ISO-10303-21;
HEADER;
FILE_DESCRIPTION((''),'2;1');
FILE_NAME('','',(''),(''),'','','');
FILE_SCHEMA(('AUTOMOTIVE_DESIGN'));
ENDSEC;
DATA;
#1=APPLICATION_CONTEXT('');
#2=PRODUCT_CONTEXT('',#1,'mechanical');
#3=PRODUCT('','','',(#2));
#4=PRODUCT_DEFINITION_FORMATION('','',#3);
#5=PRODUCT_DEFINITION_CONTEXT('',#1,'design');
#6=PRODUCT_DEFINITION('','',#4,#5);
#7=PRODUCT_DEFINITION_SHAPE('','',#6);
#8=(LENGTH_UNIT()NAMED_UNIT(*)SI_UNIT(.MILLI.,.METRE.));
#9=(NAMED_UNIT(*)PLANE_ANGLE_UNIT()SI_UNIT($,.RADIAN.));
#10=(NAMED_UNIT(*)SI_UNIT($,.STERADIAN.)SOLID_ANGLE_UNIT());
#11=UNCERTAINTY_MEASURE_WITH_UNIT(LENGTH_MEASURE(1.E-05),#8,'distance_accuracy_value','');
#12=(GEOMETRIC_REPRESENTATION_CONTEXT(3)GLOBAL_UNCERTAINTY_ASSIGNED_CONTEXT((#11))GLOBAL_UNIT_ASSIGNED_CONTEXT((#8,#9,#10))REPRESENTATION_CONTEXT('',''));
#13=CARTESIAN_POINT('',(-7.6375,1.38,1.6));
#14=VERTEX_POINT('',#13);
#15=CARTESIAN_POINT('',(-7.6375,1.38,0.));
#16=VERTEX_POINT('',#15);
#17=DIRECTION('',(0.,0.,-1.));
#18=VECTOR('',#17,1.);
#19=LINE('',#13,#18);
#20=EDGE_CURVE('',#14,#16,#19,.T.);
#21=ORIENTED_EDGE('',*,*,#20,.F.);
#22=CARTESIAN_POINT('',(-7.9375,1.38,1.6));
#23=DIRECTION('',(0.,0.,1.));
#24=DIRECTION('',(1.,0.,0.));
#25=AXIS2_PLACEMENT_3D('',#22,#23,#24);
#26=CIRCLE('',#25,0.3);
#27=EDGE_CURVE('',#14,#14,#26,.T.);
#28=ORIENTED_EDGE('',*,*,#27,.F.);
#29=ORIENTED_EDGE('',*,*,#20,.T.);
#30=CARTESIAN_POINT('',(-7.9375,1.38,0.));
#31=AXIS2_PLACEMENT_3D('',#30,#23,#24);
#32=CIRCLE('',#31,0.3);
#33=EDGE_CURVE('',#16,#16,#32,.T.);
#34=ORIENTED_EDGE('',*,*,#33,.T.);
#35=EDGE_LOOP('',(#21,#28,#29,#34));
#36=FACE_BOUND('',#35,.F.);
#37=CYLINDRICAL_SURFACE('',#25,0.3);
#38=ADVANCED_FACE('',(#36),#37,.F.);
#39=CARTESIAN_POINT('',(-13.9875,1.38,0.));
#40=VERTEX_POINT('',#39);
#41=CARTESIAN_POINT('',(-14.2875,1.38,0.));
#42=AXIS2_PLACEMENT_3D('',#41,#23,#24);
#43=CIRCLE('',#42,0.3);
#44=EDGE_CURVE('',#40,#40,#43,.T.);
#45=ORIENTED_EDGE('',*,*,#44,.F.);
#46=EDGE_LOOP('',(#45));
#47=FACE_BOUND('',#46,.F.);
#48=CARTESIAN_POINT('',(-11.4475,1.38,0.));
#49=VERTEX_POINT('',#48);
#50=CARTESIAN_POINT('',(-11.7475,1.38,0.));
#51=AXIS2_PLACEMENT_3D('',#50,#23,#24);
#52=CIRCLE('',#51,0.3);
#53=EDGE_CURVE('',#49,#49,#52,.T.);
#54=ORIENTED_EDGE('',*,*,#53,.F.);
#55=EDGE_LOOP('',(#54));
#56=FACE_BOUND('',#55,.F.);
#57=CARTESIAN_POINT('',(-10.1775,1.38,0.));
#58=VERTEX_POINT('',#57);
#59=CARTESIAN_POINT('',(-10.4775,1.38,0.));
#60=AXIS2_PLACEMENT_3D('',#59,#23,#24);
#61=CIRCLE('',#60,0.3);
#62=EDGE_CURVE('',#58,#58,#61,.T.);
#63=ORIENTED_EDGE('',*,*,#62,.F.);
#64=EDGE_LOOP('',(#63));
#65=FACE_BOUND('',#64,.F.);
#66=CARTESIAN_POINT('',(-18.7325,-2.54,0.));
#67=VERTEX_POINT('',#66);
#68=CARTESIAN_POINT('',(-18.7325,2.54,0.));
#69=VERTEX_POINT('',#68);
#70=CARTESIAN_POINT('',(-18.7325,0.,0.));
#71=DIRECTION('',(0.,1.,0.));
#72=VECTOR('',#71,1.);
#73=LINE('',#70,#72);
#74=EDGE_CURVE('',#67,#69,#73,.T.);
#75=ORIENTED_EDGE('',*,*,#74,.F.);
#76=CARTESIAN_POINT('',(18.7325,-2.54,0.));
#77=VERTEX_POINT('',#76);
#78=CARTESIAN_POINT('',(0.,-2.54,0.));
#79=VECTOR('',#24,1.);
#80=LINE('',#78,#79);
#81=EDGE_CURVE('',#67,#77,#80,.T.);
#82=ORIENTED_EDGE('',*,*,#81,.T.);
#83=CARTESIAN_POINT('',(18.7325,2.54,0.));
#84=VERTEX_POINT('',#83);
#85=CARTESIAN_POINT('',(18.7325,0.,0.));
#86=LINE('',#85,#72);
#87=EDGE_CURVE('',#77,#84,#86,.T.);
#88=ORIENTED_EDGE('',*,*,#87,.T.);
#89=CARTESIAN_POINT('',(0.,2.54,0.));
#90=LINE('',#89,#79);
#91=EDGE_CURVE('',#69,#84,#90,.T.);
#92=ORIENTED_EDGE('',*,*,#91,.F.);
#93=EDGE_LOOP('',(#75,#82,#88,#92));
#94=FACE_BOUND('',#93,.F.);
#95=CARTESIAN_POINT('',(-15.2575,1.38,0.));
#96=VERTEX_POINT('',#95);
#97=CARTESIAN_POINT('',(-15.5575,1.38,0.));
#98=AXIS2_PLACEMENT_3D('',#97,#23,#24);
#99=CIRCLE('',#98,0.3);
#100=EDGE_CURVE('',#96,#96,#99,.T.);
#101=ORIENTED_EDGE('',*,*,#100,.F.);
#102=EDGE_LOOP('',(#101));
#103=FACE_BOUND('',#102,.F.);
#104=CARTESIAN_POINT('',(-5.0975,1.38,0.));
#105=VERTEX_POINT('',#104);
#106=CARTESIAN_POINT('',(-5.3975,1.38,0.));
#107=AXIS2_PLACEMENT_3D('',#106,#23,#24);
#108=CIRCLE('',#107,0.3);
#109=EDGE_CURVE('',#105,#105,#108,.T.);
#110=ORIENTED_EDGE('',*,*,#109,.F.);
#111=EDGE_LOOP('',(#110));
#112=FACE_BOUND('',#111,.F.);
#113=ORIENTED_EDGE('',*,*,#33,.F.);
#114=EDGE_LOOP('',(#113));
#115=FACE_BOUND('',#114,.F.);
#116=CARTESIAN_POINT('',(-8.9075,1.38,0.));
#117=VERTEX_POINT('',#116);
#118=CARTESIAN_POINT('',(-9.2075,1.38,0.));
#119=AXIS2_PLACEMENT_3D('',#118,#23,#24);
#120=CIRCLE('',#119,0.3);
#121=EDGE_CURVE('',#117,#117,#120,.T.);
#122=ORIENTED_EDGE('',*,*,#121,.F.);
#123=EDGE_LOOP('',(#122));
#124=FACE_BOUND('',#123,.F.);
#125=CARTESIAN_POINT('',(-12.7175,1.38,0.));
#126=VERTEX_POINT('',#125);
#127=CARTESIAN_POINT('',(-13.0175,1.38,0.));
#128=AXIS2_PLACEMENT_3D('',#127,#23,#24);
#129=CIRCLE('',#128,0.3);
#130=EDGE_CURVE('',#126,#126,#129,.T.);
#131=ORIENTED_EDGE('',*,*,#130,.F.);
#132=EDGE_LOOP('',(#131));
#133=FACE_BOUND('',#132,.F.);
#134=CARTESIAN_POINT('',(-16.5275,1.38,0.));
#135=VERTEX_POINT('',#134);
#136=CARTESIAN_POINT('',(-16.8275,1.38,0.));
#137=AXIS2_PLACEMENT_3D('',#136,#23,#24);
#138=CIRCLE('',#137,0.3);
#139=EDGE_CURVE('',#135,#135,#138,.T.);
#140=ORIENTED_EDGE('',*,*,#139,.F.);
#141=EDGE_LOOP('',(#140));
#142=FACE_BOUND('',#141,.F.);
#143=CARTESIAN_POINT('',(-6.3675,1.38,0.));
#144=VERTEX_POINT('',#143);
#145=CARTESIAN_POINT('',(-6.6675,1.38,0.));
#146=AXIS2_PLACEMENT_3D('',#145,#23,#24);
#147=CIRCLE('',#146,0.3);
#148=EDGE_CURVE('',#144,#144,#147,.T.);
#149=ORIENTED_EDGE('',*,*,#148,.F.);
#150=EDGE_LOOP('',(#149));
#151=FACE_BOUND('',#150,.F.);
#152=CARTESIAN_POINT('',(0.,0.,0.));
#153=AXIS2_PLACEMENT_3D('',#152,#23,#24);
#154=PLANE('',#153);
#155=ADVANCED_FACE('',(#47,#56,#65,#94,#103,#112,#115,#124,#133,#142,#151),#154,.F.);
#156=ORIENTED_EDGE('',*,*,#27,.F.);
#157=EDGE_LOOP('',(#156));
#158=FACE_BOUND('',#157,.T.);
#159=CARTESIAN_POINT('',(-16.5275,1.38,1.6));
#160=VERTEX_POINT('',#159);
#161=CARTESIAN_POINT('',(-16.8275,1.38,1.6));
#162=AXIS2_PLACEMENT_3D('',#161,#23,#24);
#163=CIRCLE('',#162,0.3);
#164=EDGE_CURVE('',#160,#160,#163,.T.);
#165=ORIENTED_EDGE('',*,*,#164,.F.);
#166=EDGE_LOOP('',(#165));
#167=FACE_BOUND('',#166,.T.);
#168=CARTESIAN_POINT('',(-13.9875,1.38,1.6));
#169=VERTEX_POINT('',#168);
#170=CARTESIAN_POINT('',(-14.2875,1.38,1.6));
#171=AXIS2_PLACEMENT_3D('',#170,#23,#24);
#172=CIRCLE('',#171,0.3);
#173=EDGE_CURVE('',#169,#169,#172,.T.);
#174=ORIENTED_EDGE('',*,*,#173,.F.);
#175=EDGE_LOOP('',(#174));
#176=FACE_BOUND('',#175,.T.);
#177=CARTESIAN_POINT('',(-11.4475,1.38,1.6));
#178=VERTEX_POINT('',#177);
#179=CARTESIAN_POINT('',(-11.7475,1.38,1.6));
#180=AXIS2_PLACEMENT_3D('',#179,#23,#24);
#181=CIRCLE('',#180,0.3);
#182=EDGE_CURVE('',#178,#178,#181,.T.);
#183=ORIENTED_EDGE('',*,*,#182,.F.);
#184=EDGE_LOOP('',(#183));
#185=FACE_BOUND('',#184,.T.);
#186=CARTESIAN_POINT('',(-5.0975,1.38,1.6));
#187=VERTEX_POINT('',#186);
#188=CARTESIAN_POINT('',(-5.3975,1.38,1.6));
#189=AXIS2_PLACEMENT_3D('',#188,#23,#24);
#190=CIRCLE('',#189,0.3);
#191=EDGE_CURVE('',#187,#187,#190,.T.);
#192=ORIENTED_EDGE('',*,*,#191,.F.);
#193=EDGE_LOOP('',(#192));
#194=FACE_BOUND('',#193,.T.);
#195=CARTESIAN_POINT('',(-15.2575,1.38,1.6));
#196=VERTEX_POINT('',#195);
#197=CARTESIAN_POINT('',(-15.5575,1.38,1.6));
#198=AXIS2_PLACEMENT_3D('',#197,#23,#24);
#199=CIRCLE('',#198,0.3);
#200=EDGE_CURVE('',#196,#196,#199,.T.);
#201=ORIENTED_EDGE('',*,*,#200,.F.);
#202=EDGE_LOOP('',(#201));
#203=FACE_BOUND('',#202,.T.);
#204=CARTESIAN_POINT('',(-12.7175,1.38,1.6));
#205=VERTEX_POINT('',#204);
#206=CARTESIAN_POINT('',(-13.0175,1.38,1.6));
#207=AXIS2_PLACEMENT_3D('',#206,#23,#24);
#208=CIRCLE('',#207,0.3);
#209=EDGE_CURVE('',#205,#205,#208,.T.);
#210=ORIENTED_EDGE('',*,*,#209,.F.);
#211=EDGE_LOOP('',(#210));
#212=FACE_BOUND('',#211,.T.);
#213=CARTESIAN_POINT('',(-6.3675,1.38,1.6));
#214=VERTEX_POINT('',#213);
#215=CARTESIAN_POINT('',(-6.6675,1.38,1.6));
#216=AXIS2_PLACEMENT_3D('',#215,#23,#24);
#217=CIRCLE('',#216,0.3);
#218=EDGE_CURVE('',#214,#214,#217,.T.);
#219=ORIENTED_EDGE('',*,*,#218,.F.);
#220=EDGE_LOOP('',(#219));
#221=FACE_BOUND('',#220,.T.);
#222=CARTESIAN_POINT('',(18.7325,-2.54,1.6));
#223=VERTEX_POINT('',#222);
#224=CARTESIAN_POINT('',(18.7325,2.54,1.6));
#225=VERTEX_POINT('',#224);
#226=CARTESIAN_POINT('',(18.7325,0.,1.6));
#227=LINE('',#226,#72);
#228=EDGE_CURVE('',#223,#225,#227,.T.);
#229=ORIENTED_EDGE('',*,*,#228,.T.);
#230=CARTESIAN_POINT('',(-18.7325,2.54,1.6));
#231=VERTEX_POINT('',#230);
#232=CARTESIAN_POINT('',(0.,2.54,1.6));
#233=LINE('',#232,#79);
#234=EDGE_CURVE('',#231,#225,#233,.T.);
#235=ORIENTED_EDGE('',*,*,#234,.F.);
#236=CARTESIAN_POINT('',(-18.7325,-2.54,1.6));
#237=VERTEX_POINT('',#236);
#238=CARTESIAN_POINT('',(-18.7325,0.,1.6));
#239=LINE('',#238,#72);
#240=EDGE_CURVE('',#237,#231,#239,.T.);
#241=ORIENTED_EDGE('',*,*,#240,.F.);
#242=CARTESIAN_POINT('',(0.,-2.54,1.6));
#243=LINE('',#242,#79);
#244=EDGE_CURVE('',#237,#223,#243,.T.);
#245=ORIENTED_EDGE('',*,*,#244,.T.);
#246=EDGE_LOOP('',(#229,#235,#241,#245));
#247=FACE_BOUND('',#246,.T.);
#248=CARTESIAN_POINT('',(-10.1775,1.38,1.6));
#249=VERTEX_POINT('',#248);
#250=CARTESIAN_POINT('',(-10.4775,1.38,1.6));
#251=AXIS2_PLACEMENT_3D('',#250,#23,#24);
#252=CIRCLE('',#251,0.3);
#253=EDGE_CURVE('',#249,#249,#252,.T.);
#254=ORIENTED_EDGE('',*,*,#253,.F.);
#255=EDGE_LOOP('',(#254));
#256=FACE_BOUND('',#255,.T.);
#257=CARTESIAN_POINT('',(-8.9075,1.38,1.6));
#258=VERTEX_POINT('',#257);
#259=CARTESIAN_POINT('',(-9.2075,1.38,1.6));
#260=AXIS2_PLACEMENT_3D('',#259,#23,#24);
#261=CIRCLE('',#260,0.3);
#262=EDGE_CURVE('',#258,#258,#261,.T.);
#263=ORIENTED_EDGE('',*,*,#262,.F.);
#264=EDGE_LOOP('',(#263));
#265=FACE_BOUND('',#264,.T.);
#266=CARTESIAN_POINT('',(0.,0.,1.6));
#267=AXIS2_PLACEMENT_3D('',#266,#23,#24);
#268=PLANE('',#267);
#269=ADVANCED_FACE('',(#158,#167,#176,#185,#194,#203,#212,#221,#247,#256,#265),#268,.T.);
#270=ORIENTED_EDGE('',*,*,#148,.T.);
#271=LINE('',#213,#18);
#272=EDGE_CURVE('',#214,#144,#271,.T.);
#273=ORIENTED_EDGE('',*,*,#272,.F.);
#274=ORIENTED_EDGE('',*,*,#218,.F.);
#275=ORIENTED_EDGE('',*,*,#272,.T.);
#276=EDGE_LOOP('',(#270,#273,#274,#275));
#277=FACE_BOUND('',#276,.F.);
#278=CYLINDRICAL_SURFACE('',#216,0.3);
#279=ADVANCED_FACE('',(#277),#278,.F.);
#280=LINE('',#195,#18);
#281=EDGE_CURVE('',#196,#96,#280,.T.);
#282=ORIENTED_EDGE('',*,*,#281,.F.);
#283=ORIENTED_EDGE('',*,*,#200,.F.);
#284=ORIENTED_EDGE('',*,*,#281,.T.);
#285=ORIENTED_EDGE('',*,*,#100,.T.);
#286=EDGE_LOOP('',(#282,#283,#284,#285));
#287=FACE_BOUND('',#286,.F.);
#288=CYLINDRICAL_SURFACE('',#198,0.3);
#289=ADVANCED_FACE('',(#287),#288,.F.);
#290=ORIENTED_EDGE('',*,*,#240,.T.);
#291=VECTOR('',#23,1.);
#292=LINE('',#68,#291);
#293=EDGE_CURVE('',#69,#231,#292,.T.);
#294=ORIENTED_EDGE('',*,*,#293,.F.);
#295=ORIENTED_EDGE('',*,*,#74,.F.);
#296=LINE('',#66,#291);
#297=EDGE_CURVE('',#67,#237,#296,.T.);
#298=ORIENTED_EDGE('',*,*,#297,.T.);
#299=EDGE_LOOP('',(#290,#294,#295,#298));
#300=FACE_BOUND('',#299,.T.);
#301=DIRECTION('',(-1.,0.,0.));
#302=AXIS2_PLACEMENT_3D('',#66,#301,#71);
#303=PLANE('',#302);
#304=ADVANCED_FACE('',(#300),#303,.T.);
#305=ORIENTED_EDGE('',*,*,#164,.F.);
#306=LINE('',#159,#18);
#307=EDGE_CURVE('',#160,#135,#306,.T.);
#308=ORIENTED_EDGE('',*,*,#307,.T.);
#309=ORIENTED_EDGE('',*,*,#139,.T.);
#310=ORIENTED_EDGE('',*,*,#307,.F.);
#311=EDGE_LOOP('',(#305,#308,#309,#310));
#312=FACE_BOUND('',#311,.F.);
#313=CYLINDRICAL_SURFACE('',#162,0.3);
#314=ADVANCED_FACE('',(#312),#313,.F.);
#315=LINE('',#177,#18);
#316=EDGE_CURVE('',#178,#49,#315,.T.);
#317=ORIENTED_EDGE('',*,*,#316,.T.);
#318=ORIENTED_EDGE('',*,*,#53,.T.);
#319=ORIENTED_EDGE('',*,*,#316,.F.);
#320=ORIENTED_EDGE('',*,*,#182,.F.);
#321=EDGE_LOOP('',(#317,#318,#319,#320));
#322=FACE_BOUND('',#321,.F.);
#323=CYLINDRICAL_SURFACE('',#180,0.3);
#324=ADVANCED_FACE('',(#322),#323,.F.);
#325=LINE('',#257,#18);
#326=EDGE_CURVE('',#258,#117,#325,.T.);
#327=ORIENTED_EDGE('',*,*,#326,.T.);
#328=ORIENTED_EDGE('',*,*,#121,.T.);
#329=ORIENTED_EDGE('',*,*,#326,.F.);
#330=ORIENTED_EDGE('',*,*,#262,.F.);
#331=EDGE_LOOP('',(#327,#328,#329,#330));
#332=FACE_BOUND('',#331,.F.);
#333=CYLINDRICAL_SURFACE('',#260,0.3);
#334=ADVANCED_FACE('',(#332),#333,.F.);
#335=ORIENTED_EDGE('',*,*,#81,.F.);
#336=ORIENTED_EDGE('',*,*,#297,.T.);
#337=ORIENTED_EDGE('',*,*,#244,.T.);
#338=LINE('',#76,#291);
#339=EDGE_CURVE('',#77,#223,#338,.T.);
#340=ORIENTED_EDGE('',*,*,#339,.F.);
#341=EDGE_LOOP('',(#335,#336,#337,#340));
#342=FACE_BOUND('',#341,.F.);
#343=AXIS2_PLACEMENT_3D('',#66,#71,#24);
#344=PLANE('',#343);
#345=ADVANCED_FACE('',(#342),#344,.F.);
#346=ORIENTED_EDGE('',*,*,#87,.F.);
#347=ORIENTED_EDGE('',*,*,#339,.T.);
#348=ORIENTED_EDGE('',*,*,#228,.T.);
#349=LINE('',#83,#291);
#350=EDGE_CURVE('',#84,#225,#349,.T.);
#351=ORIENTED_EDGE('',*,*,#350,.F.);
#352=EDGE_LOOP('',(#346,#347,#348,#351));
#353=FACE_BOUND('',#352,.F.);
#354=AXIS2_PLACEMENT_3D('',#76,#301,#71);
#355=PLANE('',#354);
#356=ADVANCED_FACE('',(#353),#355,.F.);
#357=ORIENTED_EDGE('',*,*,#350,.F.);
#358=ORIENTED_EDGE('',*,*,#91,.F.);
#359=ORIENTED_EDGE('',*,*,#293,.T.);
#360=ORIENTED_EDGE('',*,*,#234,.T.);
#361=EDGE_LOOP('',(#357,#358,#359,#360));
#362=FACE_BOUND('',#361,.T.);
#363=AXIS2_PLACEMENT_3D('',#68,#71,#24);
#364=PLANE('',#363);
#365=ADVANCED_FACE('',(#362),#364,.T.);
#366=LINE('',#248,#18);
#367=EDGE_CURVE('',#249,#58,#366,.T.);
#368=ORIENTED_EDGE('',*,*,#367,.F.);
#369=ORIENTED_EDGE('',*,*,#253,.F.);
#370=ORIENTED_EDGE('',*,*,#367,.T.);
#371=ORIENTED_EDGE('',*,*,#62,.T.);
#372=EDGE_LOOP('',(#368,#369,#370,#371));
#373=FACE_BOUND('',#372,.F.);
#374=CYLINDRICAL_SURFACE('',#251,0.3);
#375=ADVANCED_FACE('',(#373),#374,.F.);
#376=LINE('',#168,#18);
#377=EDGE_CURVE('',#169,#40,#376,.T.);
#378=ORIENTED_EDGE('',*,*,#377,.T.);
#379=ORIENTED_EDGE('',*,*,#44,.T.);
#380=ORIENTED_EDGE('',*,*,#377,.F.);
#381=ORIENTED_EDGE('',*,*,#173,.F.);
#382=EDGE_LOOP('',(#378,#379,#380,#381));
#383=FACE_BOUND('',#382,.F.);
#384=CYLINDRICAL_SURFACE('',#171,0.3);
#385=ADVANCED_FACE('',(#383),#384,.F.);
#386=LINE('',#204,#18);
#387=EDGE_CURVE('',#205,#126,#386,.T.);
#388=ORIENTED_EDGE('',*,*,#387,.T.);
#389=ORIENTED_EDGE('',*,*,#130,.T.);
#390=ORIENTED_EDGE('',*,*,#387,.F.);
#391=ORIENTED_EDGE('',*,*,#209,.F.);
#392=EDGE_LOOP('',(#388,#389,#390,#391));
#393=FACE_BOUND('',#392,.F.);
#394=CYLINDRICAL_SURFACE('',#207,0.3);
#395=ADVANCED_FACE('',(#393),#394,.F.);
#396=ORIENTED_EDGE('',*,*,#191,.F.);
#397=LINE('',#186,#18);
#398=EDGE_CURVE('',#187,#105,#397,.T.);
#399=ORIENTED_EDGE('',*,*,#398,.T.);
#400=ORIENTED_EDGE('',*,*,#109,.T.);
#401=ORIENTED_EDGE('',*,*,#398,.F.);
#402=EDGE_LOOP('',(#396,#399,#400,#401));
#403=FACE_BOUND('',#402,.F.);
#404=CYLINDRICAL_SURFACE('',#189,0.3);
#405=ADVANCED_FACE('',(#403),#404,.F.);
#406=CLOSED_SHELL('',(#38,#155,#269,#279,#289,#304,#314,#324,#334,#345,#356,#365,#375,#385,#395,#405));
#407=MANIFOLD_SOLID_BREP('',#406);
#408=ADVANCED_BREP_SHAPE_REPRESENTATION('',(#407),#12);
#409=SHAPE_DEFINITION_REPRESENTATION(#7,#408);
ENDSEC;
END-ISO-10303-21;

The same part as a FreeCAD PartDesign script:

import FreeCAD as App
import Part
import Sketcher
Q = App.Units.Quantity

doc = App.newDocument("Part")
body = doc.addObject("PartDesign::Body", "Body")

sketch1 = body.newObject("Sketcher::SketchObject", "Sketch")
sketch1.AttachmentSupport = (doc.getObject("XY_Plane"), [""])
sketch1.MapMode = "FlatFace"
sketch1.addGeometry([
    Part.LineSegment(App.Vector(-18.7325, 2.54, 0), App.Vector(-18.7325, -2.54, 0)),
    Part.LineSegment(App.Vector(-18.7325, -2.54, 0), App.Vector(18.7325, -2.54, 0)),
    Part.LineSegment(App.Vector(18.7325, -2.54, 0), App.Vector(18.7325, 2.54, 0)),
    Part.LineSegment(App.Vector(18.7325, 2.54, 0), App.Vector(-18.7325, 2.54, 0)),
], False)
sketch1.addConstraint([
    Sketcher.Constraint("Coincident", 0, 2, 1, 1),
    Sketcher.Constraint("Coincident", 1, 2, 2, 1),
    Sketcher.Constraint("Coincident", 2, 2, 3, 1),
    Sketcher.Constraint("Coincident", 3, 2, 0, 1),
    Sketcher.Constraint("Vertical", 0),
    Sketcher.Constraint("Horizontal", 1),
    Sketcher.Constraint("Vertical", 2),
    Sketcher.Constraint("Horizontal", 3),
    Sketcher.Constraint("Symmetric", 0, 2, 2, 2, -1, 1),
    Sketcher.Constraint("DistanceY", 0, 2, 0, 1, Q("0.2 in")),
    Sketcher.Constraint("DistanceX", 1, 1, 1, 2, Q("1.475 in")),
])
pad1 = body.newObject("PartDesign::Pad", "Pad")
pad1.Profile = sketch1
pad1.Length = 1.6

sketch2 = body.newObject("Sketcher::SketchObject", "Sketch001")
sketch2.AttachmentSupport = (doc.getObject("XY_Plane"), [""])
sketch2.MapMode = "FlatFace"
sketch2.AttachmentOffset = App.Placement(App.Vector(0, 0, 1.6), App.Rotation())
sketch2.addGeometry([
    Part.Circle(App.Vector(-5.3975, 1.38, 0), App.Vector(0, 0, 1), 0.3),
    Part.Circle(App.Vector(-6.6675, 1.38, 0), App.Vector(0, 0, 1), 0.3),
    Part.Circle(App.Vector(-7.9375, 1.38, 0), App.Vector(0, 0, 1), 0.3),
    Part.Circle(App.Vector(-9.2075, 1.38, 0), App.Vector(0, 0, 1), 0.3),
    Part.Circle(App.Vector(-10.4775, 1.38, 0), App.Vector(0, 0, 1), 0.3),
    Part.Circle(App.Vector(-11.7475, 1.38, 0), App.Vector(0, 0, 1), 0.3),
    Part.Circle(App.Vector(-13.0175, 1.38, 0), App.Vector(0, 0, 1), 0.3),
    Part.Circle(App.Vector(-14.2875, 1.38, 0), App.Vector(0, 0, 1), 0.3),
    Part.Circle(App.Vector(-15.5575, 1.38, 0), App.Vector(0, 0, 1), 0.3),
    Part.Circle(App.Vector(-16.8275, 1.38, 0), App.Vector(0, 0, 1), 0.3),
], False)
sketch2.addConstraint([
    Sketcher.Constraint("Equal", 0, 1),
    Sketcher.Constraint("Equal", 1, 2),
    Sketcher.Constraint("Equal", 2, 3),
    Sketcher.Constraint("Equal", 3, 4),
    Sketcher.Constraint("Equal", 4, 5),
    Sketcher.Constraint("Equal", 5, 6),
    Sketcher.Constraint("Equal", 6, 7),
    Sketcher.Constraint("Equal", 7, 8),
    Sketcher.Constraint("Equal", 8, 9),
    Sketcher.Constraint("Horizontal", 0, 3, 1, 3),
    Sketcher.Constraint("Horizontal", 1, 3, 2, 3),
    Sketcher.Constraint("Horizontal", 2, 3, 3, 3),
    Sketcher.Constraint("Horizontal", 3, 3, 4, 3),
    Sketcher.Constraint("Horizontal", 4, 3, 5, 3),
    Sketcher.Constraint("Horizontal", 5, 3, 6, 3),
    Sketcher.Constraint("Horizontal", 6, 3, 7, 3),
    Sketcher.Constraint("Horizontal", 7, 3, 8, 3),
    Sketcher.Constraint("Horizontal", 8, 3, 9, 3),
    Sketcher.Constraint("DistanceX", 2, 3, 0, 3, Q("0.1 in")),
    Sketcher.Constraint("DistanceX", 3, 3, 1, 3, Q("0.1 in")),
    Sketcher.Constraint("DistanceX", 4, 3, 2, 3, Q("0.1 in")),
    Sketcher.Constraint("DistanceX", 5, 3, 3, 3, Q("0.1 in")),
    Sketcher.Constraint("DistanceX", 6, 3, 4, 3, Q("0.1 in")),
    Sketcher.Constraint("DistanceX", 7, 3, 5, 3, Q("0.1 in")),
    Sketcher.Constraint("DistanceX", 8, 3, 6, 3, Q("0.1 in")),
    Sketcher.Constraint("DistanceX", 9, 3, 7, 3, Q("0.1 in")),
    Sketcher.Constraint("Diameter", 0, 0.6),
    Sketcher.Constraint("DistanceX", 1, 3, 0, 3, Q("0.05 in")),
    Sketcher.Constraint("DistanceX", 2, 3, -1, 1, Q("0.3125 in")),
    Sketcher.Constraint("DistanceY", -1, 1, 0, 3, 1.38),
])
pocket1 = body.newObject("PartDesign::Pocket", "Pocket")
pocket1.Profile = sketch2
pocket1.Length = Q("0.1 in")

doc.recompute()
